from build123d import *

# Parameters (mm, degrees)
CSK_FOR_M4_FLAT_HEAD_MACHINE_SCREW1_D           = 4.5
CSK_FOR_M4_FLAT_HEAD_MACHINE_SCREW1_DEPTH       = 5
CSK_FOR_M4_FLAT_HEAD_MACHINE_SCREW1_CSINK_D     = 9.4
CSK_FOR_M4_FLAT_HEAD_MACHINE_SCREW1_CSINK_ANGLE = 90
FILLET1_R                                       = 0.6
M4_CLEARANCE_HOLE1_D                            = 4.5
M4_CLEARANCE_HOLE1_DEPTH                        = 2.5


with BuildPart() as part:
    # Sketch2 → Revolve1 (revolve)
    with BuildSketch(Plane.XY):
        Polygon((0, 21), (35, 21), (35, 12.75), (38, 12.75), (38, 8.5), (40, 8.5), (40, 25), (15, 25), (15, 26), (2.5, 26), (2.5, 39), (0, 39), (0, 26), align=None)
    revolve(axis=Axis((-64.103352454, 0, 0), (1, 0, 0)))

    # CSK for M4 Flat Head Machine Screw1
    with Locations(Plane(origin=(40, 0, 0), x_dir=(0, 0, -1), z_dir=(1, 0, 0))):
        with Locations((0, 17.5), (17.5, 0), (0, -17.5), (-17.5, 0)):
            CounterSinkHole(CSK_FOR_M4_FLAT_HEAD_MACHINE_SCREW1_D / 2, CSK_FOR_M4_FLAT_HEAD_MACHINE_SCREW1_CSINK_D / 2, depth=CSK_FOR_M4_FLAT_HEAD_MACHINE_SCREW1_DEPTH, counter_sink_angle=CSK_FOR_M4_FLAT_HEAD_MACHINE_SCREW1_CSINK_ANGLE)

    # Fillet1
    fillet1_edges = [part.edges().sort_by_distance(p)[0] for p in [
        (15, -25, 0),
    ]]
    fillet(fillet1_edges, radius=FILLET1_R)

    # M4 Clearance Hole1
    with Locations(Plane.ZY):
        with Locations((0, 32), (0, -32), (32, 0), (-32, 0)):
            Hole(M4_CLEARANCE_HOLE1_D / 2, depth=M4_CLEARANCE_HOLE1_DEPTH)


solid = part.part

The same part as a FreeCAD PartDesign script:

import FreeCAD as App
import Part
import Sketcher
from FreeCAD import Vector


def edges_at(feature, points):
    """Names of the edges that pass closest to the given points."""
    edges = feature.Shape.Edges
    near = lambda p: min(range(len(edges)), key=lambda i: edges[i].distToShape(Part.Vertex(*p))[0])
    return sorted({f"Edge{near(p) + 1}" for p in points})

doc = App.newDocument("Part")
body = doc.addObject("PartDesign::Body", "Body")

# Sketch on XY plane
sketch1 = body.newObject("Sketcher::SketchObject", "Sketch")
sketch1.AttachmentSupport = (doc.getObject("XY_Plane"), [""])
sketch1.MapMode = "FlatFace"
sketch1.addGeometry(Part.LineSegment(Vector(0, 21, 0), Vector(35, 21, 0)), False)
sketch1.addGeometry(Part.LineSegment(Vector(35, 21, 0), Vector(35, 12.75, 0)), False)
sketch1.addGeometry(Part.LineSegment(Vector(35, 12.75, 0), Vector(38, 12.75, 0)), False)
sketch1.addGeometry(Part.LineSegment(Vector(38, 12.75, 0), Vector(38, 8.5, 0)), False)
sketch1.addGeometry(Part.LineSegment(Vector(38, 8.5, 0), Vector(40, 8.5, 0)), False)
sketch1.addGeometry(Part.LineSegment(Vector(40, 8.5, 0), Vector(40, 25, 0)), False)
sketch1.addGeometry(Part.LineSegment(Vector(40, 25, 0), Vector(15, 25, 0)), False)
sketch1.addGeometry(Part.LineSegment(Vector(15, 25, 0), Vector(15, 26, 0)), False)
sketch1.addGeometry(Part.LineSegment(Vector(15, 26, 0), Vector(2.5, 26, 0)), False)
sketch1.addGeometry(Part.LineSegment(Vector(2.5, 26, 0), Vector(2.5, 39, 0)), False)
sketch1.addGeometry(Part.LineSegment(Vector(2.5, 39, 0), Vector(0, 39, 0)), False)
sketch1.addGeometry(Part.LineSegment(Vector(0, 39, 0), Vector(0, 21, 0)), False)
sketch1.addConstraint(Sketcher.Constraint("Coincident", 0, 2, 1, 1))
sketch1.addConstraint(Sketcher.Constraint("Coincident", 1, 2, 2, 1))
sketch1.addConstraint(Sketcher.Constraint("Coincident", 2, 2, 3, 1))
sketch1.addConstraint(Sketcher.Constraint("Coincident", 3, 2, 4, 1))
sketch1.addConstraint(Sketcher.Constraint("Coincident", 4, 2, 5, 1))
sketch1.addConstraint(Sketcher.Constraint("Coincident", 5, 2, 6, 1))
sketch1.addConstraint(Sketcher.Constraint("Coincident", 6, 2, 7, 1))
sketch1.addConstraint(Sketcher.Constraint("Coincident", 7, 2, 8, 1))
sketch1.addConstraint(Sketcher.Constraint("Coincident", 8, 2, 9, 1))
sketch1.addConstraint(Sketcher.Constraint("Coincident", 9, 2, 10, 1))
sketch1.addConstraint(Sketcher.Constraint("Coincident", 10, 2, 11, 1))
sketch1.addConstraint(Sketcher.Constraint("Coincident", 11, 2, 0, 1))
sketch1.addConstraint(Sketcher.Constraint("Horizontal", 0))
sketch1.addConstraint(Sketcher.Constraint("Vertical", 1))
sketch1.addConstraint(Sketcher.Constraint("Horizontal", 2))
sketch1.addConstraint(Sketcher.Constraint("Vertical", 3))
sketch1.addConstraint(Sketcher.Constraint("Horizontal", 4))
sketch1.addConstraint(Sketcher.Constraint("Vertical", 5))
sketch1.addConstraint(Sketcher.Constraint("Horizontal", 6))
sketch1.addConstraint(Sketcher.Constraint("Vertical", 7))
sketch1.addConstraint(Sketcher.Constraint("Horizontal", 8))
sketch1.addConstraint(Sketcher.Constraint("Vertical", 9))
sketch1.addConstraint(Sketcher.Constraint("Horizontal", 10))
sketch1.addConstraint(Sketcher.Constraint("Vertical", 11))
sketch1.addConstraint(Sketcher.Constraint("PointOnObject", 10, 2, -2))
sketch1.addConstraint(Sketcher.Constraint("DistanceX", 0, 1, 0, 2, 35.0))
sketch1.addConstraint(Sketcher.Constraint("DistanceX", 2, 1, 2, 2, 3.0))
sketch1.addConstraint(Sketcher.Constraint("DistanceX", 4, 1, 4, 2, 2.0))
sketch1.addConstraint(Sketcher.Constraint("DistanceX", 6, 2, 6, 1, 25.0))
sketch1.addConstraint(Sketcher.Constraint("DistanceY", 7, 1, 7, 2, 1.0))
sketch1.addConstraint(Sketcher.Constraint("DistanceY", 9, 1, 9, 2, 13.0))
sketch1.addConstraint(Sketcher.Constraint("DistanceY", 11, 2, 11, 1, 18.0))
sketch1.addConstraint(Sketcher.Constraint("DistanceX", 8, 2, 8, 1, 12.5))
sketch1.addConstraint(Sketcher.Constraint("DistanceY", 5, 1, 5, 2, 16.5))
sketch1.addConstraint(Sketcher.Constraint("DistanceY", -1, 1, 0, 2, 21.0))
sketch1.addConstraint(Sketcher.Constraint("DistanceY", 1, 2, 1, 1, 8.25))
revolution = body.newObject("PartDesign::Revolution", "Revolution")
revolution.Profile = sketch1
revolution.ReferenceAxis = (sketch1, ["H_Axis"])
revolution.Angle = 360

# Sketch on YZ plane
sketch2 = body.newObject("Sketcher::SketchObject", "Sketch001")
sketch2.AttachmentSupport = (doc.getObject("YZ_Plane"), [""])
sketch2.MapMode = "FlatFace"
sketch2.AttachmentOffset = App.Placement(Vector(0, 0, 40), App.Rotation())
sketch2.addGeometry(Part.Circle(Vector(17.5, 0, 0), Vector(0, 0, 1), 2.25), False)
sketch2.addGeometry(Part.Circle(Vector(0, -17.5, 0), Vector(0, 0, 1), 2.25), False)
sketch2.addGeometry(Part.Circle(Vector(-17.5, 0, 0), Vector(0, 0, 1), 2.25), False)
sketch2.addGeometry(Part.Circle(Vector(0, 17.5, 0), Vector(0, 0, 1), 2.25), False)
sketch2.addConstraint(Sketcher.Constraint("Equal", 0, 1))
sketch2.addConstraint(Sketcher.Constraint("Equal", 1, 2))
sketch2.addConstraint(Sketcher.Constraint("Equal", 2, 3))
sketch2.addConstraint(Sketcher.Constraint("Symmetric", 0, 3, 2, 3, -1, 1))
sketch2.addConstraint(Sketcher.Constraint("Symmetric", 1, 3, 3, 3, -1, 1))
sketch2.addConstraint(Sketcher.Constraint("PointOnObject", 0, 3, -1))
sketch2.addConstraint(Sketcher.Constraint("PointOnObject", 1, 3, -2))
sketch2.addConstraint(Sketcher.Constraint("Diameter", 0, 4.5))
sketch2.addConstraint(Sketcher.Constraint("DistanceX", 2, 3, 0, 3, 35.0))
sketch2.addConstraint(Sketcher.Constraint("DistanceY", 1, 3, 3, 3, 35.0))
doc.recompute()
hole = body.newObject("PartDesign::Hole", "Hole")
hole.Profile = sketch2
hole.ThreadType = "None"
hole.Diameter = 4.5
hole.DepthType = "Dimension"
hole.Depth = 5
hole.DrillPoint = "Flat"
hole.HoleCutType = "Countersink"
hole.HoleCutDiameter = 9.4
hole.HoleCutCountersinkAngle = 90
doc.recompute()

fillet = body.newObject("PartDesign::Fillet", "Fillet")
fillet.Base = (hole, edges_at(hole, [(15, -25, 0)]))
fillet.Radius = 0.6

# Sketch on YZ plane
sketch3 = body.newObject("Sketcher::SketchObject", "Sketch002")
sketch3.AttachmentSupport = (doc.getObject("YZ_Plane"), [""])
sketch3.MapMode = "FlatFace"
sketch3.addGeometry(Part.Circle(Vector(32, 0, 0), Vector(0, 0, 1), 2.25), False)
sketch3.addGeometry(Part.Circle(Vector(-32, 0, 0), Vector(0, 0, 1), 2.25), False)
sketch3.addGeometry(Part.Circle(Vector(0, 32, 0), Vector(0, 0, 1), 2.25), False)
sketch3.addGeometry(Part.Circle(Vector(0, -32, 0), Vector(0, 0, 1), 2.25), False)
sketch3.addConstraint(Sketcher.Constraint("Equal", 0, 1))
sketch3.addConstraint(Sketcher.Constraint("Equal", 1, 2))
sketch3.addConstraint(Sketcher.Constraint("Equal", 2, 3))
sketch3.addConstraint(Sketcher.Constraint("Symmetric", 0, 3, 1, 3, -1, 1))
sketch3.addConstraint(Sketcher.Constraint("Symmetric", 2, 3, 3, 3, -1, 1))
sketch3.addConstraint(Sketcher.Constraint("PointOnObject", 0, 3, -1))
sketch3.addConstraint(Sketcher.Constraint("PointOnObject", 2, 3, -2))
sketch3.addConstraint(Sketcher.Constraint("Diameter", 0, 4.5))
sketch3.addConstraint(Sketcher.Constraint("DistanceX", -1, 1, 0, 3, 32.0))
sketch3.addConstraint(Sketcher.Constraint("DistanceY", -1, 1, 2, 3, 32.0))
doc.recompute()
hole2 = body.newObject("PartDesign::Hole", "Hole001")
hole2.Profile = sketch3
hole2.ThreadType = "None"
hole2.Diameter = 4.5
hole2.DepthType = "Dimension"
hole2.Depth = 2.5
hole2.DrillPoint = "Flat"
hole2.Reversed = True

doc.recompute()
